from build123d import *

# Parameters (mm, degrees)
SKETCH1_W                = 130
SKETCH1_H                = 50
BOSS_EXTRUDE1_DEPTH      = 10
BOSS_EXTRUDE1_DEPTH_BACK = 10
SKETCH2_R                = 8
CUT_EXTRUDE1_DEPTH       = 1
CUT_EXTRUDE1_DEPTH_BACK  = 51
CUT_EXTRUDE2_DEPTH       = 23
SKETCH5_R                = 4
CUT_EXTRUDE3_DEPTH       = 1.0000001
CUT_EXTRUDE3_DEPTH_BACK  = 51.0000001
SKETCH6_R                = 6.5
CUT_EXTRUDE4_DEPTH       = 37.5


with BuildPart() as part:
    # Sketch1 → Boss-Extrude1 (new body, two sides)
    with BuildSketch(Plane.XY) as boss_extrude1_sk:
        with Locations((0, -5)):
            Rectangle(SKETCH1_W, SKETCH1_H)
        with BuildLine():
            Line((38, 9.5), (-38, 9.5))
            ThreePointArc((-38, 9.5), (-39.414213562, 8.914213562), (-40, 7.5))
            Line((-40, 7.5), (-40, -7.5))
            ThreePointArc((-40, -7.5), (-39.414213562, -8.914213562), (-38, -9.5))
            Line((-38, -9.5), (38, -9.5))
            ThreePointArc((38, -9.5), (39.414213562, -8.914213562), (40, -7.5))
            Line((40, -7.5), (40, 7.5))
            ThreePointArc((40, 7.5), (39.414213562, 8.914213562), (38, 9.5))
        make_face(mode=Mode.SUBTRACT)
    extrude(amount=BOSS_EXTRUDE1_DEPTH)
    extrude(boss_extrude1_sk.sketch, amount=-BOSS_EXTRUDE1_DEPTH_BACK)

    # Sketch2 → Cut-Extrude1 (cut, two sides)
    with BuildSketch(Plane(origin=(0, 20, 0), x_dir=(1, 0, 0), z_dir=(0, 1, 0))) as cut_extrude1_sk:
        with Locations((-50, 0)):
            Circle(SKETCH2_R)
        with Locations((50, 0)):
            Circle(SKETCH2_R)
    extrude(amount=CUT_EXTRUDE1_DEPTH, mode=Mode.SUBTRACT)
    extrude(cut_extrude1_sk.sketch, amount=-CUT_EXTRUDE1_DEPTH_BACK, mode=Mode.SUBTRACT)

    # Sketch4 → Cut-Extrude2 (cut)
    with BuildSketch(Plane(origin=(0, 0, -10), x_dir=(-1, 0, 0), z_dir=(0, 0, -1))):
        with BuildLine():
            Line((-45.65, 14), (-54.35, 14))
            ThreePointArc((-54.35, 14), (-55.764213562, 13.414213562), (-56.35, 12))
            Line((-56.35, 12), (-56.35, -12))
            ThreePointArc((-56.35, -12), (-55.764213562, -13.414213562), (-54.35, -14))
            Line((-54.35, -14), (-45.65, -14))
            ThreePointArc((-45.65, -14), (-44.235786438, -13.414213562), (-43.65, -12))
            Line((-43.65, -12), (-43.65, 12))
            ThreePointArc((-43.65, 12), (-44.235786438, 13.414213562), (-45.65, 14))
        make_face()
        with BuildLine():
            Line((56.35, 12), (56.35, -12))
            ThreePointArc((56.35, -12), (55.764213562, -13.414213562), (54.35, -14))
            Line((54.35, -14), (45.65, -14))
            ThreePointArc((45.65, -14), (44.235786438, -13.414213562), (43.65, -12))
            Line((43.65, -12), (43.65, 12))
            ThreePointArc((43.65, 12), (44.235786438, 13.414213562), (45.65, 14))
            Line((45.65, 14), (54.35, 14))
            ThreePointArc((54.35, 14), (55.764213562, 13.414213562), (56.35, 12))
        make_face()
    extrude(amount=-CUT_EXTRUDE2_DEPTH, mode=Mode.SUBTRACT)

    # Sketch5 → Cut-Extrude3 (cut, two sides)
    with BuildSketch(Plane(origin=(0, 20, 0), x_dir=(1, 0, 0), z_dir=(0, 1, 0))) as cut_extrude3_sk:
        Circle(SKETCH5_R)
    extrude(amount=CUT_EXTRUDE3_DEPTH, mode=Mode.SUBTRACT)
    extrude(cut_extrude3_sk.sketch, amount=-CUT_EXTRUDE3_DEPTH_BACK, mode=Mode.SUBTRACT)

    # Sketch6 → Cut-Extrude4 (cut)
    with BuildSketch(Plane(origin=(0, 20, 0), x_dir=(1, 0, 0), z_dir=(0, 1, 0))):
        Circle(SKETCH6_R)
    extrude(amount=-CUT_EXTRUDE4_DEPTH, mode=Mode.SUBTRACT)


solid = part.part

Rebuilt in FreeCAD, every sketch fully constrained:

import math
import FreeCAD as App
import Part
import Sketcher

V = App.Vector

doc = App.newDocument("Part")
params = doc.addObject("Spreadsheet::Sheet", "Params")
for row, (alias, value) in enumerate([
    ("sketch1_radius", "2 mm"),
    ("sketch1_width", "130 mm"),
    ("sketch1_width2", "76 mm"),
    ("sketch1_height", "50 mm"),
    ("sketch1_height2", "15 mm"),
    ("pad1_length", "10 mm"),
    ("pad1_length2", "10 mm"),
    ("sketch2_diameter", "16 mm"),
    ("sketch3_radius", "2 mm"),
    ("sketch3_height", "24 mm"),
    ("sketch3_width", "8.7 mm"),
    ("pocket2_length", "23 mm"),
    ("sketch4_diameter", "8 mm"),
    ("sketch5_diameter", "13 mm"),
    ("pocket4_length", "37.5 mm"),
], start=1):
    params.set(f"A{row}", alias)
    params.set(f"B{row}", "=" + value)
    params.setAlias(f"B{row}", alias)

body = doc.addObject("PartDesign::Body", "Body")

# Sketch on XY plane
sketch1 = body.newObject("Sketcher::SketchObject", "Sketch")
sketch1.AttachmentSupport = (doc.getObject("XY_Plane"), [""])
sketch1.MapMode = "FlatFace"
sketch1.addGeometry([
    Part.LineSegment(V(-65, 20, 0), V(-65, -30, 0)),  # 0
    Part.LineSegment(V(-65, -30, 0), V(65, -30, 0)),  # 1
    Part.LineSegment(V(65, -30, 0), V(65, 20, 0)),  # 2
    Part.LineSegment(V(65, 20, 0), V(-65, 20, 0)),  # 3
    Part.LineSegment(V(-38, 9.5, 0), V(38, 9.5, 0)),  # 4
    Part.ArcOfCircle(Part.Circle(V(38, 7.5, 0), V(0, 0, 1), 2), math.radians(0), math.radians(90)),  # 5
    Part.LineSegment(V(40, 7.5, 0), V(40, -7.5, 0)),  # 6
    Part.ArcOfCircle(Part.Circle(V(38, -7.5, 0), V(0, 0, 1), 2), math.radians(-90), math.radians(0)),  # 7
    Part.LineSegment(V(38, -9.5, 0), V(-38, -9.5, 0)),  # 8
    Part.ArcOfCircle(Part.Circle(V(-38, -7.5, 0), V(0, 0, 1), 2), math.radians(-180), math.radians(-90)),  # 9
    Part.LineSegment(V(-40, -7.5, 0), V(-40, 7.5, 0)),  # 10
    Part.ArcOfCircle(Part.Circle(V(-38, 7.5, 0), V(0, 0, 1), 2), math.radians(90), math.radians(180)),  # 11
], False)
sketch1.addConstraint([
    Sketcher.Constraint("Coincident", 0, 2, 1, 1),
    Sketcher.Constraint("Coincident", 1, 2, 2, 1),
    Sketcher.Constraint("Coincident", 2, 2, 3, 1),
    Sketcher.Constraint("Coincident", 3, 2, 0, 1),
    Sketcher.Constraint("Tangent", 4, 2, 5, 2),
    Sketcher.Constraint("Tangent", 5, 1, 6, 1),
    Sketcher.Constraint("Tangent", 6, 2, 7, 2),
    Sketcher.Constraint("Tangent", 7, 1, 8, 1),
    Sketcher.Constraint("Tangent", 8, 2, 9, 2),
    Sketcher.Constraint("Tangent", 9, 1, 10, 1),
    Sketcher.Constraint("Tangent", 10, 2, 11, 2),
    Sketcher.Constraint("Tangent", 11, 1, 4, 1),
    Sketcher.Constraint("Vertical", 0),
    Sketcher.Constraint("Horizontal", 1),
    Sketcher.Constraint("Vertical", 2),
    Sketcher.Constraint("Horizontal", 3),
    Sketcher.Constraint("Horizontal", 4),
    Sketcher.Constraint("Vertical", 6),
    Sketcher.Constraint("Horizontal", 8),
    Sketcher.Constraint("Vertical", 10),
    Sketcher.Constraint("Equal", 5, 7),
    Sketcher.Constraint("Equal", 7, 9),
    Sketcher.Constraint("Equal", 9, 11),
    Sketcher.Constraint("Symmetric", 5, 3, 9, 3, -1, 1),
    Sketcher.Constraint("Radius", 5, 2.0),
    Sketcher.Constraint("DistanceX", 1, 1, 1, 2, 130.0),
    Sketcher.Constraint("DistanceX", 4, 1, 4, 2, 76.0),
    Sketcher.Constraint("DistanceY", 0, 2, 0, 1, 50.0),
    Sketcher.Constraint("DistanceY", 6, 2, 6, 1, 15.0),
    Sketcher.Constraint("DistanceX", 0, 2, -1, 1, 65.0),
    Sketcher.Constraint("DistanceY", 0, 2, -1, 1, 30.0),
])
sketch1.setExpression("Constraints[24]", "Params.sketch1_radius")
sketch1.setExpression("Constraints[25]", "Params.sketch1_width")
sketch1.setExpression("Constraints[26]", "Params.sketch1_width2")
sketch1.setExpression("Constraints[27]", "Params.sketch1_height")
sketch1.setExpression("Constraints[28]", "Params.sketch1_height2")
pad1 = body.newObject("PartDesign::Pad", "Pad")
pad1.Profile = sketch1
pad1.Type = "TwoLengths"
pad1.setExpression("Length", "Params.pad1_length")
pad1.setExpression("Length2", "Params.pad1_length2")

# Sketch on XZ plane
sketch2 = body.newObject("Sketcher::SketchObject", "Sketch001")
sketch2.AttachmentSupport = (doc.getObject("XZ_Plane"), [""])
sketch2.MapMode = "FlatFace"
sketch2.AttachmentOffset = App.Placement(V(0, 0, -20), App.Rotation())
sketch2.addGeometry([
    Part.Circle(V(-50, 0, 0), V(0, 0, 1), 8),
    Part.Circle(V(50, 0, 0), V(0, 0, 1), 8),
], False)
sketch2.addConstraint([
    Sketcher.Constraint("Equal", 0, 1),
    Sketcher.Constraint("Symmetric", 0, 3, 1, 3, -1, 1),
    Sketcher.Constraint("PointOnObject", 0, 3, -1),
    Sketcher.Constraint("Diameter", 0, 16.0),
    Sketcher.Constraint("DistanceX", 0, 3, -1, 1, 50.0),
])
sketch2.setExpression("Constraints[3]", "Params.sketch2_diameter")
pocket1 = body.newObject("PartDesign::Pocket", "Pocket")
pocket1.Profile = sketch2
pocket1.Type = "ThroughAll"
pocket1.Midplane = True

# Sketch on XY plane
sketch3 = body.newObject("Sketcher::SketchObject", "Sketch002")
sketch3.AttachmentSupport = (doc.getObject("XY_Plane"), [""])
sketch3.MapMode = "FlatFace"
sketch3.AttachmentOffset = App.Placement(V(0, 0, -10), App.Rotation())
sketch3.addGeometry([
    Part.LineSegment(V(45.65, 14, 0), V(54.35, 14, 0)),  # 0
    Part.ArcOfCircle(Part.Circle(V(54.35, 12, 0), V(0, 0, 1), 2), math.radians(0), math.radians(90)),  # 1
    Part.LineSegment(V(56.35, 12, 0), V(56.35, -12, 0)),  # 2
    Part.ArcOfCircle(Part.Circle(V(54.35, -12, 0), V(0, 0, 1), 2), math.radians(-90), math.radians(0)),  # 3
    Part.LineSegment(V(54.35, -14, 0), V(45.65, -14, 0)),  # 4
    Part.ArcOfCircle(Part.Circle(V(45.65, -12, 0), V(0, 0, 1), 2), math.radians(-180), math.radians(-90)),  # 5
    Part.LineSegment(V(43.65, -12, 0), V(43.65, 12, 0)),  # 6
    Part.ArcOfCircle(Part.Circle(V(45.65, 12, 0), V(0, 0, 1), 2), math.radians(90), math.radians(180)),  # 7
    Part.LineSegment(V(-56.35, -12, 0), V(-56.35, 12, 0)),  # 8
    Part.ArcOfCircle(Part.Circle(V(-54.35, 12, 0), V(0, 0, 1), 2), math.radians(90), math.radians(180)),  # 9
    Part.LineSegment(V(-54.35, 14, 0), V(-45.65, 14, 0)),  # 10
    Part.ArcOfCircle(Part.Circle(V(-45.65, 12, 0), V(0, 0, 1), 2), math.radians(0), math.radians(90)),  # 11
    Part.LineSegment(V(-43.65, 12, 0), V(-43.65, -12, 0)),  # 12
    Part.ArcOfCircle(Part.Circle(V(-45.65, -12, 0), V(0, 0, 1), 2), math.radians(-90), math.radians(0)),  # 13
    Part.LineSegment(V(-45.65, -14, 0), V(-54.35, -14, 0)),  # 14
    Part.ArcOfCircle(Part.Circle(V(-54.35, -12, 0), V(0, 0, 1), 2), math.radians(-180), math.radians(-90)),  # 15
], False)
sketch3.addConstraint([
    Sketcher.Constraint("Tangent", 0, 2, 1, 2),
    Sketcher.Constraint("Tangent", 1, 1, 2, 1),
    Sketcher.Constraint("Tangent", 2, 2, 3, 2),
    Sketcher.Constraint("Tangent", 3, 1, 4, 1),
    Sketcher.Constraint("Tangent", 4, 2, 5, 2),
    Sketcher.Constraint("Tangent", 5, 1, 6, 1),
    Sketcher.Constraint("Tangent", 6, 2, 7, 2),
    Sketcher.Constraint("Tangent", 7, 1, 0, 1),
    Sketcher.Constraint("Tangent", 8, 2, 9, 2),
    Sketcher.Constraint("Tangent", 9, 1, 10, 1),
    Sketcher.Constraint("Tangent", 10, 2, 11, 2),
    Sketcher.Constraint("Tangent", 11, 1, 12, 1),
    Sketcher.Constraint("Tangent", 12, 2, 13, 2),
    Sketcher.Constraint("Tangent", 13, 1, 14, 1),
    Sketcher.Constraint("Tangent", 14, 2, 15, 2),
    Sketcher.Constraint("Tangent", 15, 1, 8, 1),
    Sketcher.Constraint("Horizontal", 0),
    Sketcher.Constraint("Vertical", 2),
    Sketcher.Constraint("Horizontal", 4),
    Sketcher.Constraint("Vertical", 6),
    Sketcher.Constraint("Vertical", 8),
    Sketcher.Constraint("Horizontal", 10),
    Sketcher.Constraint("Vertical", 12),
    Sketcher.Constraint("Horizontal", 14),
    Sketcher.Constraint("Equal", 1, 3),
    Sketcher.Constraint("Equal", 3, 5),
    Sketcher.Constraint("Equal", 5, 7),
    Sketcher.Constraint("Equal", 7, 9),
    Sketcher.Constraint("Equal", 9, 11),
    Sketcher.Constraint("Equal", 11, 13),
    Sketcher.Constraint("Equal", 13, 15),
    Sketcher.Constraint("Symmetric", 3, 3, 9, 3, -1, 1),
    Sketcher.Constraint("Symmetric", 7, 3, 13, 3, -1, 1),
    Sketcher.Constraint("Horizontal", 7, 3, 9, 3),
    Sketcher.Constraint("Radius", 1, 2.0),
    Sketcher.Constraint("DistanceY", 2, 2, 2, 1, 24.0),
    Sketcher.Constraint("DistanceX", 0, 1, 0, 2, 8.7),
    Sketcher.Constraint("DistanceX", 9, 3, 7, 3, 100.0),
])
sketch3.setExpression("Constraints[34]", "Params.sketch3_radius")
sketch3.setExpression("Constraints[35]", "Params.sketch3_height")
sketch3.setExpression("Constraints[36]", "Params.sketch3_width")
pocket2 = body.newObject("PartDesign::Pocket", "Pocket001")
pocket2.Profile = sketch3
pocket2.setExpression("Length", "Params.pocket2_length")
pocket2.Reversed = True

# Sketch on XZ plane
sketch4 = body.newObject("Sketcher::SketchObject", "Sketch003")
sketch4.AttachmentSupport = (doc.getObject("XZ_Plane"), [""])
sketch4.MapMode = "FlatFace"
sketch4.AttachmentOffset = App.Placement(V(0, 0, -20), App.Rotation())
sketch4.addGeometry(Part.Circle(V(0, 0, 0), V(0, 0, 1), 4), False)
sketch4.addConstraint([
    Sketcher.Constraint("Coincident", 0, 3, -1, 1),
    Sketcher.Constraint("Diameter", 0, 8.0),
])
sketch4.setExpression("Constraints[1]", "Params.sketch4_diameter")
pocket3 = body.newObject("PartDesign::Pocket", "Pocket002")
pocket3.Profile = sketch4
pocket3.Type = "ThroughAll"
pocket3.Midplane = True

# Sketch on XZ plane
sketch5 = body.newObject("Sketcher::SketchObject", "Sketch004")
sketch5.AttachmentSupport = (doc.getObject("XZ_Plane"), [""])
sketch5.MapMode = "FlatFace"
sketch5.AttachmentOffset = App.Placement(V(0, 0, -20), App.Rotation())
sketch5.addGeometry(Part.Circle(V(0, 0, 0), V(0, 0, 1), 6.5), False)
sketch5.addConstraint([
    Sketcher.Constraint("Coincident", 0, 3, -1, 1),
    Sketcher.Constraint("Diameter", 0, 13.0),
])
sketch5.setExpression("Constraints[1]", "Params.sketch5_diameter")
pocket4 = body.newObject("PartDesign::Pocket", "Pocket003")
pocket4.Profile = sketch5
pocket4.setExpression("Length", "Params.pocket4_length")
pocket4.Reversed = True

doc.recompute()
